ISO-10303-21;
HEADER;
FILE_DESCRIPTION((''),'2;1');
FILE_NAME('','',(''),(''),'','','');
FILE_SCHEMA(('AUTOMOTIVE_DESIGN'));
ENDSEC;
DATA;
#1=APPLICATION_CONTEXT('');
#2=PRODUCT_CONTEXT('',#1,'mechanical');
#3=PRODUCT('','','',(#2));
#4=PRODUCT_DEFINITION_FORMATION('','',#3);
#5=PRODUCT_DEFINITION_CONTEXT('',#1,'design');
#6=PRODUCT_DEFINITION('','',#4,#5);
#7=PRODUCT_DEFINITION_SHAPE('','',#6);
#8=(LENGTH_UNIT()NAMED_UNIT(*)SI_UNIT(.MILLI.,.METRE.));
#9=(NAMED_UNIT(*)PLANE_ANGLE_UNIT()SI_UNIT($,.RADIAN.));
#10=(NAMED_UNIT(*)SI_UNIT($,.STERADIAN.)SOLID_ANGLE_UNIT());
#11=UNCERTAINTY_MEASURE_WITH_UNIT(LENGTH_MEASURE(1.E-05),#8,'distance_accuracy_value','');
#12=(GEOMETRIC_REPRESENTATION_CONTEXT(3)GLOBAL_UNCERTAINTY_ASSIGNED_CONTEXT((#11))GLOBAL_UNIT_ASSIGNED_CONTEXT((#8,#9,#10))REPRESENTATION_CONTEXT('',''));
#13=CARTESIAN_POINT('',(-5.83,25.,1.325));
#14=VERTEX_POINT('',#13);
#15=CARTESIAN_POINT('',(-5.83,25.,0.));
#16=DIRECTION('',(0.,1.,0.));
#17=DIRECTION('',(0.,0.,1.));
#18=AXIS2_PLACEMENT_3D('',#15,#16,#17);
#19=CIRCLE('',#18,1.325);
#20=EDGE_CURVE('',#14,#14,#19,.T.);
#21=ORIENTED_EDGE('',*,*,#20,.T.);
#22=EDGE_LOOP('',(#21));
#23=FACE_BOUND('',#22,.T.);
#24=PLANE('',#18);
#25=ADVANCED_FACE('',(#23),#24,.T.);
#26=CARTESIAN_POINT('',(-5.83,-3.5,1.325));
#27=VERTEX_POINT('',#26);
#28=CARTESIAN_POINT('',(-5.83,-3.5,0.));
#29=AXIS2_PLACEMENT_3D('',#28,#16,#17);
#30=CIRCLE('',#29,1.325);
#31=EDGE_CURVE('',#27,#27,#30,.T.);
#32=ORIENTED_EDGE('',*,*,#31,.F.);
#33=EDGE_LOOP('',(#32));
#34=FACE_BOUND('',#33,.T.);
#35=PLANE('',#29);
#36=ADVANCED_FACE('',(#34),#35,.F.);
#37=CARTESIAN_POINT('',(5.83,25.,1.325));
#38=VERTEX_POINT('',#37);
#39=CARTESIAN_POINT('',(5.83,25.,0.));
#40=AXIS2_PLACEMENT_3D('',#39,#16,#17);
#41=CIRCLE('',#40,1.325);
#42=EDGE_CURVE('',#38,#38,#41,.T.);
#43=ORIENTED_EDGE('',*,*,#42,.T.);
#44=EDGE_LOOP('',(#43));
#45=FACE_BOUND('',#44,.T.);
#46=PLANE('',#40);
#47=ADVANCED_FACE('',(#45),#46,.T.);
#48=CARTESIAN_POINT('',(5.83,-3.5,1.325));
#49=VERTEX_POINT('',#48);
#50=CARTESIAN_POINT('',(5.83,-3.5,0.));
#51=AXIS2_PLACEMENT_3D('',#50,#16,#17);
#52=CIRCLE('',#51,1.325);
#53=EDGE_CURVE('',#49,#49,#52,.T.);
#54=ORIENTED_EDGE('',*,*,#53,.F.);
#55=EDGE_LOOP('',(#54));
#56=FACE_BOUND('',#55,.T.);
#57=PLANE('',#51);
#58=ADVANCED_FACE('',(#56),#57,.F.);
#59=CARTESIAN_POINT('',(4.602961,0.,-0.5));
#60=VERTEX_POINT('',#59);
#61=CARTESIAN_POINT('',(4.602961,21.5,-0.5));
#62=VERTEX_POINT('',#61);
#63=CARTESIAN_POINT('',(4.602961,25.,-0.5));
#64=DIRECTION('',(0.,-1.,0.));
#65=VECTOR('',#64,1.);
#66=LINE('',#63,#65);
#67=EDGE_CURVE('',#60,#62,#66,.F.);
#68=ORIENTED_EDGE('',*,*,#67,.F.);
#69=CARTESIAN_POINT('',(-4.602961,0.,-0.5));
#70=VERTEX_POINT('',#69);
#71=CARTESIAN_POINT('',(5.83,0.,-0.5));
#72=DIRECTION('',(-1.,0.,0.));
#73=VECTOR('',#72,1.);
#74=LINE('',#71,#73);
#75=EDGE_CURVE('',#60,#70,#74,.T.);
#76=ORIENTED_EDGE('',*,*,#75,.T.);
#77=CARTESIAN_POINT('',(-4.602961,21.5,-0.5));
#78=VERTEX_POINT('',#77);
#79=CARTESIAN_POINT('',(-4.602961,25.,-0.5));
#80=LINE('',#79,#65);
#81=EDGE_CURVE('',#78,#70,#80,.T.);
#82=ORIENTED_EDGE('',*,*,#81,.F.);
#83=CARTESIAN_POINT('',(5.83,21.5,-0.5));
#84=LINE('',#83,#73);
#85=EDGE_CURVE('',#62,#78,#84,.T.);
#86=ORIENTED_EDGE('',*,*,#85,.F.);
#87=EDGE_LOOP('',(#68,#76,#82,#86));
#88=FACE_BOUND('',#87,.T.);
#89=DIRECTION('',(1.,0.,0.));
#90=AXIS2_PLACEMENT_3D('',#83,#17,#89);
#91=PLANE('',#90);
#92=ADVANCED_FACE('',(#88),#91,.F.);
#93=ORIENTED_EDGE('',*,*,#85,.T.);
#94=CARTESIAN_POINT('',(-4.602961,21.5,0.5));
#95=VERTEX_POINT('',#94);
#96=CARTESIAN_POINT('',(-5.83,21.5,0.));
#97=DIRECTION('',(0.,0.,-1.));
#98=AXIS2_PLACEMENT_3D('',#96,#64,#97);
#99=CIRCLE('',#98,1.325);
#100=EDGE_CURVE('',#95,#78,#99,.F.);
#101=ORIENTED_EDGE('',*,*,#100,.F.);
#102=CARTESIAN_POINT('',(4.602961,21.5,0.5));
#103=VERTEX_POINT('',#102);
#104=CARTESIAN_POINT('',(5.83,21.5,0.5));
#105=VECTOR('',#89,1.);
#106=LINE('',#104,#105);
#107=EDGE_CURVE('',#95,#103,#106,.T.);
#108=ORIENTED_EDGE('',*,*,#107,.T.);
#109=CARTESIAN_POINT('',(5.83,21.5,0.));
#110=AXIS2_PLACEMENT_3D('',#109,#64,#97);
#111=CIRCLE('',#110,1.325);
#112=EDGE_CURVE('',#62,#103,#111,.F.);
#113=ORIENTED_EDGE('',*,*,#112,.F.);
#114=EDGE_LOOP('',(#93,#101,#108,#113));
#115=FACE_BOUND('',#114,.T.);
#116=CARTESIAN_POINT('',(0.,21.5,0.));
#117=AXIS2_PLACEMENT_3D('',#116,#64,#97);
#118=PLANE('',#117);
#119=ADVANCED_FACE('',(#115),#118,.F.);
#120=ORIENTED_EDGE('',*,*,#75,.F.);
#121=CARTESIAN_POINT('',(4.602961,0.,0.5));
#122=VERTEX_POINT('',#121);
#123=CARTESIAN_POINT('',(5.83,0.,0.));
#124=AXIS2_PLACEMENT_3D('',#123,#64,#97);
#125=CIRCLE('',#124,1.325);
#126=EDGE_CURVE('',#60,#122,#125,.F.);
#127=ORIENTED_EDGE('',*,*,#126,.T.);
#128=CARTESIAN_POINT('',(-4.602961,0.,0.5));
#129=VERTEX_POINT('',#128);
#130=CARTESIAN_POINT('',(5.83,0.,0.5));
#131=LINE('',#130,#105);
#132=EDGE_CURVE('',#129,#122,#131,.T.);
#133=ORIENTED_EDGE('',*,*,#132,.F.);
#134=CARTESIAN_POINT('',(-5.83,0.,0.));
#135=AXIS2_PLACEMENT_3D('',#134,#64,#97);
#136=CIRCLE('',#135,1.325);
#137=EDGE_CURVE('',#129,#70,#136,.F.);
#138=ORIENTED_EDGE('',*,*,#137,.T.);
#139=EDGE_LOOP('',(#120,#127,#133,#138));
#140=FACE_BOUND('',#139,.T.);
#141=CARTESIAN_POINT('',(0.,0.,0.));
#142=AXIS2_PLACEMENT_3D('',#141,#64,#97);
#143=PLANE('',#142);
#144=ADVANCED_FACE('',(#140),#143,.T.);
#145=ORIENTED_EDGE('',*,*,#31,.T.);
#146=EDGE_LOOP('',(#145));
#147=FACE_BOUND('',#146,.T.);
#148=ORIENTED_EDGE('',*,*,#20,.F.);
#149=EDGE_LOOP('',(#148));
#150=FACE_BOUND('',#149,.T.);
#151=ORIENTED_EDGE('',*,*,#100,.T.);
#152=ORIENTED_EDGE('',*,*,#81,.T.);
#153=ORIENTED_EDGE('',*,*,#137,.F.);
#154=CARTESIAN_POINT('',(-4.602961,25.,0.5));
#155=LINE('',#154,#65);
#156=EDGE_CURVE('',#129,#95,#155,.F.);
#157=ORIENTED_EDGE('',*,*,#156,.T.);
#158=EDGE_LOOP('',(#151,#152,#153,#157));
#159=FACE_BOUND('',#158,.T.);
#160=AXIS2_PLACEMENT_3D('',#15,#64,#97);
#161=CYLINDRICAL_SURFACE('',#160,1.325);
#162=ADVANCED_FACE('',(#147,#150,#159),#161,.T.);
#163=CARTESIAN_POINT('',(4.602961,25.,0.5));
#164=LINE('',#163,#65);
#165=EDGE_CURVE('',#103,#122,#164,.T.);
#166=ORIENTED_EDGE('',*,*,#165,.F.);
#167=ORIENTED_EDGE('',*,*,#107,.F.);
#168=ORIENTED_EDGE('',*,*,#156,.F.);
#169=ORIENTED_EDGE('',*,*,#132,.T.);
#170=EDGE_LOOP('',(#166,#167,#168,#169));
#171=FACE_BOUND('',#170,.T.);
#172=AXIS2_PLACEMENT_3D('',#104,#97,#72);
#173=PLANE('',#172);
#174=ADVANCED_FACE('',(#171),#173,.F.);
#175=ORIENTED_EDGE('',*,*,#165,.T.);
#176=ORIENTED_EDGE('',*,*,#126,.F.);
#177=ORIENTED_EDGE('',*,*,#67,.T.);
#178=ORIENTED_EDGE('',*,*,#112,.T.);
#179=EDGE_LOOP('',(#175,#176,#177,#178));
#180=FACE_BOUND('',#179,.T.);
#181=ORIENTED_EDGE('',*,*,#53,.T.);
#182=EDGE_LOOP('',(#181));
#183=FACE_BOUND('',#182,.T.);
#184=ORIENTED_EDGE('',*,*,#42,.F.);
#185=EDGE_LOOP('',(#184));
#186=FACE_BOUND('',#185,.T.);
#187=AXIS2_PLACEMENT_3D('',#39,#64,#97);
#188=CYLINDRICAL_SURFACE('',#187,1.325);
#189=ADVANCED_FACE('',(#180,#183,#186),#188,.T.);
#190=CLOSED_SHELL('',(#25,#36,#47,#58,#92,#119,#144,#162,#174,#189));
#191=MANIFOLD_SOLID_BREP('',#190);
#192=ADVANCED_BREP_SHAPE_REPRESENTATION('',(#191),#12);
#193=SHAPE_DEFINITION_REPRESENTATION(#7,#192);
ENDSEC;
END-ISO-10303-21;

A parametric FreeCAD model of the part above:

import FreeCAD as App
import Part
import Sketcher
from FreeCAD import Vector
Q = App.Units.Quantity


def add_polygon(sketch, points):
    """Adds a closed chain of lines whose ends are joined by coincident constraints."""
    first, n = sketch.GeometryCount, len(points)
    for a, b in zip(points, points[1:] + points[:1]):
        sketch.addGeometry(Part.LineSegment(App.Vector(*a, 0), App.Vector(*b, 0)), False)
    for i in range(n):
        sketch.addConstraint(Sketcher.Constraint("Coincident", first + i, 2, first + (i + 1) % n, 1))

doc = App.newDocument("Part")
params = doc.addObject("Spreadsheet::Sheet", "Params")
for row, (alias, value) in enumerate([
    ("sketch1_height", "1 mm"),
    ("sketch1_width", "11.66 mm"),
    ("pad1_length", "21.5 mm"),
    ("sketch2_diameter", "2.65 mm"),
    ("pad2_length", "28.5 mm"),
], start=1):
    params.set(f"A{row}", alias)
    params.set(f"B{row}", "=" + value)
    params.setAlias(f"B{row}", alias)

body = doc.addObject("PartDesign::Body", "Body")

sketch1 = body.newObject("Sketcher::SketchObject", "Sketch")
sketch1.AttachmentSupport = (doc.getObject("XZ_Plane"), [""])
sketch1.MapMode = "FlatFace"
add_polygon(sketch1, [(-5.8, -0.5), (-5.8, 0.5), (5.8, 0.5), (5.8, -0.5)])
sketch1.addConstraint(Sketcher.Constraint("Vertical", 0))
sketch1.addConstraint(Sketcher.Constraint("Horizontal", 1))
sketch1.addConstraint(Sketcher.Constraint("Vertical", 2))
sketch1.addConstraint(Sketcher.Constraint("Horizontal", 3))
sketch1.addConstraint(Sketcher.Constraint("Symmetric", 0, 2, 2, 2, -1, 1))
sketch1.addConstraint(Sketcher.Constraint("DistanceY", 0, 1, 0, 2, Q("1 mm")))
sketch1.addConstraint(Sketcher.Constraint("DistanceX", 1, 1, 1, 2, Q("11.66 mm")))
sketch1.setExpression("Constraints[9]", "Params.sketch1_height")
sketch1.setExpression("Constraints[10]", "Params.sketch1_width")
pad1 = body.newObject("PartDesign::Pad", "Pad")
pad1.Profile = sketch1
pad1.setExpression("Length", "Params.pad1_length")
pad1.Reversed = True

sketch2 = body.newObject("Sketcher::SketchObject", "Sketch001")
sketch2.AttachmentSupport = (doc.getObject("XZ_Plane"), [""])
sketch2.MapMode = "FlatFace"
sketch2.AttachmentOffset = App.Placement(Vector(0, 0, -10.75), App.Rotation())
sketch2.addGeometry(Part.Circle(Vector(-5.8, 0, 0), Vector(0, 0, 1), 1.3), False)
sketch2.addGeometry(Part.Circle(Vector(5.8, 0, 0), Vector(0, 0, 1), 1.3), False)
sketch2.addConstraint(Sketcher.Constraint("Equal", 0, 1))
sketch2.addConstraint(Sketcher.Constraint("Symmetric", 0, 3, 1, 3, -1, 1))
sketch2.addConstraint(Sketcher.Constraint("PointOnObject", 0, 3, -1))
sketch2.addConstraint(Sketcher.Constraint("Diameter", 0, Q("2.65 mm")))
sketch2.addConstraint(Sketcher.Constraint("DistanceX", 0, 3, -1, 1, Q("5.83 mm")))
sketch2.setExpression("Constraints[3]", "Params.sketch2_diameter")
pad2 = body.newObject("PartDesign::Pad", "Pad001")
pad2.Profile = sketch2
pad2.setExpression("Length", "Params.pad2_length")
pad2.Midplane = True

doc.recompute()
